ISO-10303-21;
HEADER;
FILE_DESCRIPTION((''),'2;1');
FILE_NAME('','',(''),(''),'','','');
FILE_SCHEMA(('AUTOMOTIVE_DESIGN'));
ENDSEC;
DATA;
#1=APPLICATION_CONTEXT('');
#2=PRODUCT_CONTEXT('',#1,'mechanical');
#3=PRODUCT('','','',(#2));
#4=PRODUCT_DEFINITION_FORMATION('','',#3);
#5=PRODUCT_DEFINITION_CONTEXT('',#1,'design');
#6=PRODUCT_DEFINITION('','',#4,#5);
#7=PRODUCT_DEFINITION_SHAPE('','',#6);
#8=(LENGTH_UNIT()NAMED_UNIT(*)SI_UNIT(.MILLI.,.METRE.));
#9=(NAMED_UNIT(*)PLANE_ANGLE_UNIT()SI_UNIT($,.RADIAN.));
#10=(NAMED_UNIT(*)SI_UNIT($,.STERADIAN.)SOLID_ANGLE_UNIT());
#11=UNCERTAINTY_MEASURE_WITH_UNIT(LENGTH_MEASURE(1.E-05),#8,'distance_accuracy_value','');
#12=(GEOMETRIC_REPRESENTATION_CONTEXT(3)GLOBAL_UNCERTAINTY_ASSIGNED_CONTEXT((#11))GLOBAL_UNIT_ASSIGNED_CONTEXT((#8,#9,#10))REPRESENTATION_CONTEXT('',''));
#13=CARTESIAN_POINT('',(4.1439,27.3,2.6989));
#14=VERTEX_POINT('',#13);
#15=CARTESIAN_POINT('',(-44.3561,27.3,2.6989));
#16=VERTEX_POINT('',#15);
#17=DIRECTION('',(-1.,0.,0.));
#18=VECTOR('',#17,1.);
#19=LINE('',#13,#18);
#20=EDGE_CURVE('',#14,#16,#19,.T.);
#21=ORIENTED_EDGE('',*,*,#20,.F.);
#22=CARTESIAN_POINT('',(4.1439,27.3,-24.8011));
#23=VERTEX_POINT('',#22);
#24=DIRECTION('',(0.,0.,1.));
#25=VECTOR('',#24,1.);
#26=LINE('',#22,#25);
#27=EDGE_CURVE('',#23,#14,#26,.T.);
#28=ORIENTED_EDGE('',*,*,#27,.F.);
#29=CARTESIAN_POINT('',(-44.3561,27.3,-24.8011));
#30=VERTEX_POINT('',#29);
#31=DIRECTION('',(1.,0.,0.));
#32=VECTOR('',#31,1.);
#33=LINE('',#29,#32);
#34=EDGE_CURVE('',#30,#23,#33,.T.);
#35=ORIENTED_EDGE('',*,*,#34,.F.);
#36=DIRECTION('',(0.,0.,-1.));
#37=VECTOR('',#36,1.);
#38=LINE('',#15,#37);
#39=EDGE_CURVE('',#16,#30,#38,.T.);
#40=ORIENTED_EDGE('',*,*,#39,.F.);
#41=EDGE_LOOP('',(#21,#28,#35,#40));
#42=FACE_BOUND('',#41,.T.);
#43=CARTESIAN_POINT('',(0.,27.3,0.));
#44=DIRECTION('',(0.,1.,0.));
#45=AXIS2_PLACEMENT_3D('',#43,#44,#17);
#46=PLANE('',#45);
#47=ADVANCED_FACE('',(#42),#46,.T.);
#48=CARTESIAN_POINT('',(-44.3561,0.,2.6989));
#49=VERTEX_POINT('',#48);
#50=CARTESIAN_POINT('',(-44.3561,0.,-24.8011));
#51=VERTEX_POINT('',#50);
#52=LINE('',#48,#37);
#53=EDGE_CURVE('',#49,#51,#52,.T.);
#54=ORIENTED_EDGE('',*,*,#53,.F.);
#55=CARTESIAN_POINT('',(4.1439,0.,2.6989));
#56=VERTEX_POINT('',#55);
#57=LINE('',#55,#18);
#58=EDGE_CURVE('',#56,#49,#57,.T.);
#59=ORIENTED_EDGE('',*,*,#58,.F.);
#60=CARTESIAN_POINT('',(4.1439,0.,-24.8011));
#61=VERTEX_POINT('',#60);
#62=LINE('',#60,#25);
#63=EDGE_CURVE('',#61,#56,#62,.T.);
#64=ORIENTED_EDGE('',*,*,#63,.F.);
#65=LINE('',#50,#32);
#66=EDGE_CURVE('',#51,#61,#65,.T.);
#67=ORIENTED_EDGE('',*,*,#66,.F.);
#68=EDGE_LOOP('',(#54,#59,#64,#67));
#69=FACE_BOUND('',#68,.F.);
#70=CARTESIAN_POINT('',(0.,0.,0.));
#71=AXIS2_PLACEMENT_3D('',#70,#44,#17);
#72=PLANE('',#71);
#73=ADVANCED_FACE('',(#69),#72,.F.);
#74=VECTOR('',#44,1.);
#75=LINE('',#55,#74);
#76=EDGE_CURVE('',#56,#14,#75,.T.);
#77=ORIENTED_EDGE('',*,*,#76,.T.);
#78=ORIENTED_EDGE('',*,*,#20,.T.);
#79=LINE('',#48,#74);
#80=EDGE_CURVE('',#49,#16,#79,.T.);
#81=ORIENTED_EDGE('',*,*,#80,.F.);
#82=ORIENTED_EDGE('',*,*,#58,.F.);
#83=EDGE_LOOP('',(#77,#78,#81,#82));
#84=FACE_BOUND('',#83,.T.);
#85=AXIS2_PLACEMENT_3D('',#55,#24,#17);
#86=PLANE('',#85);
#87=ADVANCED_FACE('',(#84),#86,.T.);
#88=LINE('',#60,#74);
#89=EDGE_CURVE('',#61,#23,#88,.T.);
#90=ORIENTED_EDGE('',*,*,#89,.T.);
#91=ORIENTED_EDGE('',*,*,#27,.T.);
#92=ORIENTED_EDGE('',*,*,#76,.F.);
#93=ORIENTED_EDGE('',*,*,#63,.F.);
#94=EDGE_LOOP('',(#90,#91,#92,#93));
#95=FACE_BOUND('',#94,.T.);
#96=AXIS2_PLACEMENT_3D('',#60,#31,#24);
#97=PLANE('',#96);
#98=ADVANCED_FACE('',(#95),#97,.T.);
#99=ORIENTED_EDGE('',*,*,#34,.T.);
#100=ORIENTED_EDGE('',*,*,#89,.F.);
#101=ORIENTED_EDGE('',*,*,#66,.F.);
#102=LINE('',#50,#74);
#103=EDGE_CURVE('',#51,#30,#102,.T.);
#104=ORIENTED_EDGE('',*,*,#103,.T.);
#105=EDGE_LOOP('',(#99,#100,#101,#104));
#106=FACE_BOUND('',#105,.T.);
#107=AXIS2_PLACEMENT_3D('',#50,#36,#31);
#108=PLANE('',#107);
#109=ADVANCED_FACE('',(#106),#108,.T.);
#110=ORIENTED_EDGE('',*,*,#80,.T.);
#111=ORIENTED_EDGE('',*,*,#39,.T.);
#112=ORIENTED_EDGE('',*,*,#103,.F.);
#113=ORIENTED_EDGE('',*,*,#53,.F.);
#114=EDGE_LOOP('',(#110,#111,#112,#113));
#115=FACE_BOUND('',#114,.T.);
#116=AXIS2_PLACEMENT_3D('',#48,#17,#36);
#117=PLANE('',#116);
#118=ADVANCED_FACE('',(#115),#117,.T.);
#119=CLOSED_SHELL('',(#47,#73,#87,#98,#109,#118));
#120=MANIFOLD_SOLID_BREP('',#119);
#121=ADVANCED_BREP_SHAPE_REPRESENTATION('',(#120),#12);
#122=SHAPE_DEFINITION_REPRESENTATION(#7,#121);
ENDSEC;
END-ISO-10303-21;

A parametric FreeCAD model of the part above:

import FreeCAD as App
import Part
import Sketcher
from FreeCAD import Vector


def add_polygon(sketch, points):
    """Adds a closed chain of lines whose ends are joined by coincident constraints."""
    first, n = sketch.GeometryCount, len(points)
    for a, b in zip(points, points[1:] + points[:1]):
        sketch.addGeometry(Part.LineSegment(App.Vector(*a, 0), App.Vector(*b, 0)), False)
    for i in range(n):
        sketch.addConstraint(Sketcher.Constraint("Coincident", first + i, 2, first + (i + 1) % n, 1))

doc = App.newDocument("Part")
body = doc.addObject("PartDesign::Body", "Body")

sketch1 = body.newObject("Sketcher::SketchObject", "Sketch")
sketch1.AttachmentSupport = (doc.getObject("XZ_Plane"), [""])
sketch1.MapMode = "FlatFace"
add_polygon(sketch1, [(-44, 3), (4, 3), (4, -25), (-44, -25)])
sketch1.addConstraint([
    Sketcher.Constraint("Horizontal", 0),
    Sketcher.Constraint("Vertical", 1),
    Sketcher.Constraint("Horizontal", 2),
    Sketcher.Constraint("Vertical", 3),
    Sketcher.Constraint("DistanceX", 0, 1, 0, 2, 48.5),
    Sketcher.Constraint("DistanceY", 1, 2, 1, 1, 27.5),
    Sketcher.Constraint("DistanceX", -1, 1, 0, 2, 4.144),
    Sketcher.Constraint("DistanceY", -1, 1, 0, 2, 2.699),
])
pad1 = body.newObject("PartDesign::Pad", "Pad")
pad1.Profile = sketch1
pad1.Length = 27.3
pad1.Reversed = True

doc.recompute()
